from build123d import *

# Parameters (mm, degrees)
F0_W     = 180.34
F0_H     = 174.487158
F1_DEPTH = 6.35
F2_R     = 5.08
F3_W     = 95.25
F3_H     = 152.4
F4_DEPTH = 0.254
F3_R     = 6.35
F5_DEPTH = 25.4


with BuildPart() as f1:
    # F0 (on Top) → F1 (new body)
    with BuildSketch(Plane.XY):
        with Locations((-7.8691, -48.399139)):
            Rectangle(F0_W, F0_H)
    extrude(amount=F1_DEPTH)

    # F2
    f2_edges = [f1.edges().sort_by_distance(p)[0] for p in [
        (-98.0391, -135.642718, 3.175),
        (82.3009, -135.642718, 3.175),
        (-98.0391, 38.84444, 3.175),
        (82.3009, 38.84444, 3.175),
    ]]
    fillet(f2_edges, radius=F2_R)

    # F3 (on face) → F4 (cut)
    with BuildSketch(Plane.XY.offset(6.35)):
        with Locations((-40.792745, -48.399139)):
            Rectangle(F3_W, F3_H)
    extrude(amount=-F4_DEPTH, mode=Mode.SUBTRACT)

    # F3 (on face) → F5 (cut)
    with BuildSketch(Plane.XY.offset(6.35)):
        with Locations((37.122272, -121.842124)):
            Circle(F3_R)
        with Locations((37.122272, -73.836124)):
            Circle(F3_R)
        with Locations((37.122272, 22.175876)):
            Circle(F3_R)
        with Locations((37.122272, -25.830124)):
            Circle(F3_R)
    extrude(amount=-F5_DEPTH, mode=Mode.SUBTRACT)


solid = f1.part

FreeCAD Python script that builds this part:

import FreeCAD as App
import Part
import Sketcher
Q = App.Units.Quantity


def edges_at(feature, points):
    """Names of the edges that pass closest to the given points."""
    edges = feature.Shape.Edges
    near = lambda p: min(range(len(edges)), key=lambda i: edges[i].distToShape(Part.Vertex(*p))[0])
    return sorted({f"Edge{near(p) + 1}" for p in points})

doc = App.newDocument("Part")
body = doc.addObject("PartDesign::Body", "Body")

# Sketch on XY plane
sketch1 = body.newObject("Sketcher::SketchObject", "Sketch")
sketch1.AttachmentSupport = (doc.getObject("XY_Plane"), [""])
sketch1.MapMode = "FlatFace"
sketch1.addGeometry([
    Part.LineSegment(App.Vector(-98, 39, 0), App.Vector(-98, -136, 0)),
    Part.LineSegment(App.Vector(-98, -136, 0), App.Vector(82, -136, 0)),
    Part.LineSegment(App.Vector(82, -136, 0), App.Vector(82, 39, 0)),
    Part.LineSegment(App.Vector(82, 39, 0), App.Vector(-98, 39, 0)),
], False)
sketch1.addConstraint([
    Sketcher.Constraint("Coincident", 0, 2, 1, 1),
    Sketcher.Constraint("Coincident", 1, 2, 2, 1),
    Sketcher.Constraint("Coincident", 2, 2, 3, 1),
    Sketcher.Constraint("Coincident", 3, 2, 0, 1),
    Sketcher.Constraint("Vertical", 0),
    Sketcher.Constraint("Horizontal", 1),
    Sketcher.Constraint("Vertical", 2),
    Sketcher.Constraint("Horizontal", 3),
    Sketcher.Constraint("DistanceX", 1, 1, 1, 2, Q("7.1 in")),
    Sketcher.Constraint("DistanceY", 0, 2, 0, 1, 174.487158),
    Sketcher.Constraint("DistanceX", 0, 2, -1, 1, 98.0391),
    Sketcher.Constraint("DistanceY", 0, 2, -1, 1, 135.642718),
])
pad1 = body.newObject("PartDesign::Pad", "Pad")
pad1.Profile = sketch1
pad1.Length = Q("0.25 in")
doc.recompute()

fillet = body.newObject("PartDesign::Fillet", "Fillet")
fillet.Base = (pad1, edges_at(pad1, [
    (-98.039, -135.643, 3.175),
    (82.301, -135.643, 3.175),
    (-98.039, 38.844, 3.175),
    (82.301, 38.844, 3.175),
]))
fillet.Radius = Q("0.2 in")

# Sketch on XY plane
sketch2 = body.newObject("Sketcher::SketchObject", "Sketch001")
sketch2.AttachmentSupport = (doc.getObject("XY_Plane"), [""])
sketch2.MapMode = "FlatFace"
sketch2.AttachmentOffset = App.Placement(App.Vector(0, 0, 0.25 * 25.4), App.Rotation())
sketch2.addGeometry([
    Part.LineSegment(App.Vector(-88, 28, 0), App.Vector(-88, -125, 0)),
    Part.LineSegment(App.Vector(-88, -125, 0), App.Vector(7, -125, 0)),
    Part.LineSegment(App.Vector(7, -125, 0), App.Vector(7, 28, 0)),
    Part.LineSegment(App.Vector(7, 28, 0), App.Vector(-88, 28, 0)),
], False)
sketch2.addConstraint([
    Sketcher.Constraint("Coincident", 0, 2, 1, 1),
    Sketcher.Constraint("Coincident", 1, 2, 2, 1),
    Sketcher.Constraint("Coincident", 2, 2, 3, 1),
    Sketcher.Constraint("Coincident", 3, 2, 0, 1),
    Sketcher.Constraint("Vertical", 0),
    Sketcher.Constraint("Horizontal", 1),
    Sketcher.Constraint("Vertical", 2),
    Sketcher.Constraint("Horizontal", 3),
    Sketcher.Constraint("DistanceY", 0, 2, 0, 1, Q("6 in")),
    Sketcher.Constraint("DistanceX", 1, 1, 1, 2, Q("3.75 in")),
    Sketcher.Constraint("DistanceY", 0, 2, -1, 1, 124.599139),
    Sketcher.Constraint("DistanceX", 0, 2, -1, 1, 88.417745),
])
pocket1 = body.newObject("PartDesign::Pocket", "Pocket")
pocket1.Profile = sketch2
pocket1.Length = Q("0.01 in")

# Sketch on XY plane
sketch3 = body.newObject("Sketcher::SketchObject", "Sketch002")
sketch3.AttachmentSupport = (doc.getObject("XY_Plane"), [""])
sketch3.MapMode = "FlatFace"
sketch3.AttachmentOffset = App.Placement(App.Vector(0, 0, 0.25 * 25.4), App.Rotation())
sketch3.addGeometry([
    Part.Circle(App.Vector(37, -122, 0), App.Vector(0, 0, 1), 6),
    Part.Circle(App.Vector(37, -74, 0), App.Vector(0, 0, 1), 6),
    Part.Circle(App.Vector(37, 22, 0), App.Vector(0, 0, 1), 6),
    Part.Circle(App.Vector(37, -26, 0), App.Vector(0, 0, 1), 6),
], False)
sketch3.addConstraint([
    Sketcher.Constraint("Equal", 0, 1),
    Sketcher.Constraint("Equal", 1, 2),
    Sketcher.Constraint("Equal", 2, 3),
    Sketcher.Constraint("Vertical", 0, 3, 1, 3),
    Sketcher.Constraint("Vertical", 1, 3, 2, 3),
    Sketcher.Constraint("Vertical", 2, 3, 3, 3),
    Sketcher.Constraint("Diameter", 0, Q("0.5 in")),
    Sketcher.Constraint("DistanceY", 0, 3, 1, 3, Q("1.89 in")),
    Sketcher.Constraint("DistanceY", 1, 3, 2, 3, Q("3.78 in")),
    Sketcher.Constraint("DistanceY", 1, 3, 3, 3, Q("1.89 in")),
    Sketcher.Constraint("DistanceX", -1, 1, 0, 3, 37.122272),
    Sketcher.Constraint("DistanceY", 0, 3, -1, 1, 121.842124),
])
pocket2 = body.newObject("PartDesign::Pocket", "Pocket001")
pocket2.Profile = sketch3
pocket2.Length = Q("1 in")

doc.recompute()
